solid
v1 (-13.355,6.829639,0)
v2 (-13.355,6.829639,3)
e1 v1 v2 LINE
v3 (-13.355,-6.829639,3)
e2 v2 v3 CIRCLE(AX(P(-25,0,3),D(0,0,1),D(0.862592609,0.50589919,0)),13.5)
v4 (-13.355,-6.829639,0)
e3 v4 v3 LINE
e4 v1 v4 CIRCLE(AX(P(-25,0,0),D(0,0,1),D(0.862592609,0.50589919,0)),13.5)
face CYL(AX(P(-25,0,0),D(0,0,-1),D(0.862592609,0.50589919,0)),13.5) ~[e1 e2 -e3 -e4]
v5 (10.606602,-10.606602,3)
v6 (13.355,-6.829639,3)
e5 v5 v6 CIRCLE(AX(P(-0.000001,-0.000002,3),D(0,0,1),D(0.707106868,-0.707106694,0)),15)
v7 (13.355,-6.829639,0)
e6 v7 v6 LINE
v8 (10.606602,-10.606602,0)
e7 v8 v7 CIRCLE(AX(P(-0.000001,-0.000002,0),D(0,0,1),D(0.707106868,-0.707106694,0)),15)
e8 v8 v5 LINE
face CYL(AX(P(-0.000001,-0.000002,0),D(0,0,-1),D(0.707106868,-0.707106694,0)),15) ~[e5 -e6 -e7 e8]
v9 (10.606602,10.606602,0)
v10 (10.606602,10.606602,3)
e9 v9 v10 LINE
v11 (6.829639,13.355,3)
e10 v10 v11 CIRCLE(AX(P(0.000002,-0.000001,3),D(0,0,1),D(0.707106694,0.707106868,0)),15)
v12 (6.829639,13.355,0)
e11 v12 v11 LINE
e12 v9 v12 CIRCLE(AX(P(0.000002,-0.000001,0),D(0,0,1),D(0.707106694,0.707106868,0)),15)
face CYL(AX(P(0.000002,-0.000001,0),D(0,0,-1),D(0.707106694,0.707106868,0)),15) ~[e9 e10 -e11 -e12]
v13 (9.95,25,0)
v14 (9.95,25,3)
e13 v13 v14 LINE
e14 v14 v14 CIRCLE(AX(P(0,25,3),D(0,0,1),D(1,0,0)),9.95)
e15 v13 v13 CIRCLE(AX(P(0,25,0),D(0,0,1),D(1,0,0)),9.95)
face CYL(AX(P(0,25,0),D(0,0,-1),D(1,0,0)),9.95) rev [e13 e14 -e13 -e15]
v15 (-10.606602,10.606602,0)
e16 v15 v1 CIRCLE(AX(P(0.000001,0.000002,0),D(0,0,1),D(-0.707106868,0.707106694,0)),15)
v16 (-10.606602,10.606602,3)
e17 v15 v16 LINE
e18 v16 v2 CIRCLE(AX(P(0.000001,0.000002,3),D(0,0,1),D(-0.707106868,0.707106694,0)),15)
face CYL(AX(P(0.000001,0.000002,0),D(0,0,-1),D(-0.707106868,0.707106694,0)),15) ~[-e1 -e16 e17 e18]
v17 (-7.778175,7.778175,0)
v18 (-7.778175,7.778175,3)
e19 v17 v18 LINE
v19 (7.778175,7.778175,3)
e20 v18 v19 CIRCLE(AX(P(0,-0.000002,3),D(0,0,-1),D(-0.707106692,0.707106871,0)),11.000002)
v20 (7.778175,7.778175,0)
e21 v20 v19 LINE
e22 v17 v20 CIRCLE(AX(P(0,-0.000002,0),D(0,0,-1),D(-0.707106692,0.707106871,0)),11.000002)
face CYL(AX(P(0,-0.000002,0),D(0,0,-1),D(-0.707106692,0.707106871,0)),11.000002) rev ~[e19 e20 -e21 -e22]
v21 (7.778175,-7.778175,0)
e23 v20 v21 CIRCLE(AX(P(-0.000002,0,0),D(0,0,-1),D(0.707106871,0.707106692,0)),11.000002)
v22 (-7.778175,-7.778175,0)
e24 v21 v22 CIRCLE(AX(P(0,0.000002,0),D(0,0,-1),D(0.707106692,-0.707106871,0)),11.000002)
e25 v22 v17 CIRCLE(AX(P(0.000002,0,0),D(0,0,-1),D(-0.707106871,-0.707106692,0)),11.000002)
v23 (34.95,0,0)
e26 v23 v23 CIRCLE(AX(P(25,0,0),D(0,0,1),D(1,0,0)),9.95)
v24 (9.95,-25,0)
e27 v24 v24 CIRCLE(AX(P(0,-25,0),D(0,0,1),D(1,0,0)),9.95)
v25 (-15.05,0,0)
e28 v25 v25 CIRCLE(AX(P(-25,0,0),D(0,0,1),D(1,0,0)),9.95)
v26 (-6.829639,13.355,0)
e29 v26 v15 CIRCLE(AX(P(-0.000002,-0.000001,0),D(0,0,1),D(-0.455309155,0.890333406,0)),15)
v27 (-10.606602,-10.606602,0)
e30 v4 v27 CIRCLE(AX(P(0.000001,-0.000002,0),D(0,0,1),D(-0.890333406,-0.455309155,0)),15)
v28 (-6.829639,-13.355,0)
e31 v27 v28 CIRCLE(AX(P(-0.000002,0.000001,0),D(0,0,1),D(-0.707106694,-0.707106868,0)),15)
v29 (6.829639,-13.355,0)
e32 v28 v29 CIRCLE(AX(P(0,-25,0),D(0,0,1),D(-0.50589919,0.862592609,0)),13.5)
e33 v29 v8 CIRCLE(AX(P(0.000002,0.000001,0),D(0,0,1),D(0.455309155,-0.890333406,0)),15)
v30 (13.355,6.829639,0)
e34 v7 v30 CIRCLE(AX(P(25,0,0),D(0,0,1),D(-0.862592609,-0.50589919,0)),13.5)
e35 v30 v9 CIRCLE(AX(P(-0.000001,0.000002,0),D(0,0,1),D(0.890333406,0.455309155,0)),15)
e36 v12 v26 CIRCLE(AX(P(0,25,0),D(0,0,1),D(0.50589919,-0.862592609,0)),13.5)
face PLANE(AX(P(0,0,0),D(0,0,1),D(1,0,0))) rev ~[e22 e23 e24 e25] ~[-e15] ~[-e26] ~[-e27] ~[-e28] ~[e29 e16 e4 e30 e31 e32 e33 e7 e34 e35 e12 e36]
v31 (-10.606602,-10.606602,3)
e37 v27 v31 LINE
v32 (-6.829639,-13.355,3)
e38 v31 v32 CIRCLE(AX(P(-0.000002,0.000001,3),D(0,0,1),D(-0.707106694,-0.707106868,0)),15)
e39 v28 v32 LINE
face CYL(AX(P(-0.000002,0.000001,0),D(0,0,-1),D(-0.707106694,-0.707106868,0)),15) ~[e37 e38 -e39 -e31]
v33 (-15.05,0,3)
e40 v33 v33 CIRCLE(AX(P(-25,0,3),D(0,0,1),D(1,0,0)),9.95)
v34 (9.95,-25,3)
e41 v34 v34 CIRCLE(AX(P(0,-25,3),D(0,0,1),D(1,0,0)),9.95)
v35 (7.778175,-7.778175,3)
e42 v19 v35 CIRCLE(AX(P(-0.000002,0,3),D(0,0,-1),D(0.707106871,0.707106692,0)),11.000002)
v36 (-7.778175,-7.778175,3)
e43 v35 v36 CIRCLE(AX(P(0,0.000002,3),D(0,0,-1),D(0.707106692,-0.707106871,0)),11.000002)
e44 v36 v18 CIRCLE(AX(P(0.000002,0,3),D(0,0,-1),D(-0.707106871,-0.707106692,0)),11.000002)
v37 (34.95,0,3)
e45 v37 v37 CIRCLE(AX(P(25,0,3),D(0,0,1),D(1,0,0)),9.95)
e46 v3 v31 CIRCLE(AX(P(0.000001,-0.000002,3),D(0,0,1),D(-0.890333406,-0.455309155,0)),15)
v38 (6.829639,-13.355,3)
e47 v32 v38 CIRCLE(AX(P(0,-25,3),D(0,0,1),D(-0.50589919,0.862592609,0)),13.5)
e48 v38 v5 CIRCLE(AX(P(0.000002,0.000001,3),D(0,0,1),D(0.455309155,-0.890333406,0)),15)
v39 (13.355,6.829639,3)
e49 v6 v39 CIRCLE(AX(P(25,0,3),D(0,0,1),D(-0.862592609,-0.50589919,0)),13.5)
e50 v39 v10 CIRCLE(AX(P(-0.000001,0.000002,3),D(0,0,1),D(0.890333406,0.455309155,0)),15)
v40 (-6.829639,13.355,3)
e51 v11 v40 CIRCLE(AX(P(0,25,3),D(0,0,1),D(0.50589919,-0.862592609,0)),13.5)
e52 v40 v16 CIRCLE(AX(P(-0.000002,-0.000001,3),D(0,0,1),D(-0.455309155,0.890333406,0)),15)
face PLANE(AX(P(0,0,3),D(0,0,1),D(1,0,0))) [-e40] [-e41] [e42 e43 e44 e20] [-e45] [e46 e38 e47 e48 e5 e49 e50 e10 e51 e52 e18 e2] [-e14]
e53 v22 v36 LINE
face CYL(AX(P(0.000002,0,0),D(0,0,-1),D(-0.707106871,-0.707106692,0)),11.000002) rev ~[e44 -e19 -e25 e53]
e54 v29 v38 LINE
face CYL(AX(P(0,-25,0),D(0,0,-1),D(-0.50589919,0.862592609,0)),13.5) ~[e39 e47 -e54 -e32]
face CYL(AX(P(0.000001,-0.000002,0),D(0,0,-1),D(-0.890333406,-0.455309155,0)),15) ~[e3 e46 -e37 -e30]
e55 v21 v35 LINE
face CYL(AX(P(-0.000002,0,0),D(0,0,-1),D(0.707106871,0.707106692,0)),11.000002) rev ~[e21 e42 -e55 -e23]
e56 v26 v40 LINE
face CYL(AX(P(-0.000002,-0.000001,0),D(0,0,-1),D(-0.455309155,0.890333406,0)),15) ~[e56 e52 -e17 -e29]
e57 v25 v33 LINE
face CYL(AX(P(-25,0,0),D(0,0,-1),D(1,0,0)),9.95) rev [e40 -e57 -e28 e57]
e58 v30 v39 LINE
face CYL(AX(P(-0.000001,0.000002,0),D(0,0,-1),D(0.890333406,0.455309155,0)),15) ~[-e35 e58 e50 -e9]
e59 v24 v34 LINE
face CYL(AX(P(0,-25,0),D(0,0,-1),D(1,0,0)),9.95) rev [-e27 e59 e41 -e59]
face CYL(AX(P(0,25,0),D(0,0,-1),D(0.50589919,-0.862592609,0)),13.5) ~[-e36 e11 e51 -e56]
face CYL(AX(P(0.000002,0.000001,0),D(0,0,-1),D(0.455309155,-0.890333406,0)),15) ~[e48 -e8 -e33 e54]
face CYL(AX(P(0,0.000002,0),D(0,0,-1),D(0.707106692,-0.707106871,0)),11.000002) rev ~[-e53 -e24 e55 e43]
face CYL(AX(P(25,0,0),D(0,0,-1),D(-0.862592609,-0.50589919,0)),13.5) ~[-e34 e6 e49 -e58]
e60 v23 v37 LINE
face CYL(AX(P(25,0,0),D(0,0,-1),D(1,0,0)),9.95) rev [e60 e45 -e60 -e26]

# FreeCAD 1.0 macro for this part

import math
import FreeCAD as App
import Part
import Sketcher

V = App.Vector
Q = App.Units.Quantity

doc = App.newDocument("Part")
params = doc.addObject("Spreadsheet::Sheet", "Params")
for row, (alias, value) in enumerate([
    ("sketch1_radius", "15 mm"),
    ("sketch1_radius2", "11.000002 mm"),
    ("sketch1_diameter", "19.9 mm"),
    ("sketch1_radius3", "13.5 mm"),
    ("pad1_length", "3 mm"),
], start=1):
    params.set(f"A{row}", alias)
    params.set(f"B{row}", "=" + value)
    params.setAlias(f"B{row}", alias)

body = doc.addObject("PartDesign::Body", "Body")

# Sketch on XY plane
sketch1 = body.newObject("Sketcher::SketchObject", "Sketch")
sketch1.AttachmentSupport = (doc.getObject("XY_Plane"), [""])
sketch1.MapMode = "FlatFace"
sketch1.addGeometry(Part.ArcOfCircle(Part.Circle(V(0, 25, 0), V(0, 0, 1), 13.5), math.radians(-60), math.radians(240)), False)
sketch1.addGeometry(Part.ArcOfCircle(Part.Circle(V(0, 0, 0), V(0, 0, 1), 15), math.radians(117.08), math.radians(135)), False)
sketch1.addGeometry(Part.ArcOfCircle(Part.Circle(V(0, 0, 0), V(0, 0, 1), 15), math.radians(135), math.radians(152.92)), False)
sketch1.addGeometry(Part.ArcOfCircle(Part.Circle(V(-25, 0, 0), V(0, 0, 1), 13.5), math.radians(30), math.radians(330)), False)
sketch1.addGeometry(Part.ArcOfCircle(Part.Circle(V(0, 0, 0), V(0, 0, 1), 15), math.radians(-152.92), math.radians(-135)), False)
sketch1.addGeometry(Part.ArcOfCircle(Part.Circle(V(0, 0, 0), V(0, 0, 1), 15), math.radians(-135), math.radians(-117.08)), False)
sketch1.addGeometry(Part.ArcOfCircle(Part.Circle(V(0, -25, 0), V(0, 0, 1), 13.5), math.radians(120), math.radians(420)), False)
sketch1.addGeometry(Part.ArcOfCircle(Part.Circle(V(0, 0, 0), V(0, 0, 1), 15), math.radians(-62.92), math.radians(-45)), False)
sketch1.addGeometry(Part.ArcOfCircle(Part.Circle(V(0, 0, 0), V(0, 0, 1), 15), math.radians(-45), math.radians(-27.08)), False)
sketch1.addGeometry(Part.ArcOfCircle(Part.Circle(V(25, 0, 0), V(0, 0, 1), 13.5), math.radians(-150), math.radians(150)), False)
sketch1.addGeometry(Part.ArcOfCircle(Part.Circle(V(0, 0, 0), V(0, 0, 1), 15), math.radians(27.08), math.radians(45)), False)
sketch1.addGeometry(Part.ArcOfCircle(Part.Circle(V(0, 0, 0), V(0, 0, 1), 15), math.radians(45), math.radians(62.92)), False)
sketch1.addGeometry(Part.Circle(V(0, -25, 0), V(0, 0, 1), 9.9), False)
sketch1.addGeometry(Part.Circle(V(-25, 0, 0), V(0, 0, 1), 9.9), False)
sketch1.addGeometry(Part.ArcOfCircle(Part.Circle(V(0, 0, 0), V(0, 0, 1), 11), math.radians(135), math.radians(225)), False)
sketch1.addGeometry(Part.ArcOfCircle(Part.Circle(V(0, 0, 0), V(0, 0, 1), 11), math.radians(45), math.radians(135)), False)
sketch1.addGeometry(Part.ArcOfCircle(Part.Circle(V(0, 0, 0), V(0, 0, 1), 11), math.radians(-45), math.radians(45)), False)
sketch1.addGeometry(Part.ArcOfCircle(Part.Circle(V(0, 0, 0), V(0, 0, 1), 11), math.radians(-135), math.radians(-45)), False)
sketch1.addGeometry(Part.Circle(V(25, 0, 0), V(0, 0, 1), 9.9), False)
sketch1.addGeometry(Part.Circle(V(0, 25, 0), V(0, 0, 1), 9.9), False)
sketch1.addConstraint(Sketcher.Constraint("Coincident", 0, 2, 1, 1))
sketch1.addConstraint(Sketcher.Constraint("Tangent", 1, 2, 2, 1))
sketch1.addConstraint(Sketcher.Constraint("Coincident", 2, 2, 3, 1))
sketch1.addConstraint(Sketcher.Constraint("Coincident", 3, 2, 4, 1))
sketch1.addConstraint(Sketcher.Constraint("Tangent", 4, 2, 5, 1))
sketch1.addConstraint(Sketcher.Constraint("Coincident", 5, 2, 6, 1))
sketch1.addConstraint(Sketcher.Constraint("Coincident", 6, 2, 7, 1))
sketch1.addConstraint(Sketcher.Constraint("Tangent", 7, 2, 8, 1))
sketch1.addConstraint(Sketcher.Constraint("Coincident", 8, 2, 9, 1))
sketch1.addConstraint(Sketcher.Constraint("Coincident", 9, 2, 10, 1))
sketch1.addConstraint(Sketcher.Constraint("Tangent", 10, 2, 11, 1))
sketch1.addConstraint(Sketcher.Constraint("Coincident", 11, 2, 0, 1))
sketch1.addConstraint(Sketcher.Constraint("Tangent", 14, 1, 15, 2))
sketch1.addConstraint(Sketcher.Constraint("Tangent", 15, 1, 16, 2))
sketch1.addConstraint(Sketcher.Constraint("Tangent", 16, 1, 17, 2))
sketch1.addConstraint(Sketcher.Constraint("Tangent", 17, 1, 14, 2))
sketch1.addConstraint(Sketcher.Constraint("Coincident", 1, 3, -1, 1))
sketch1.addConstraint(Sketcher.Constraint("Coincident", 4, 3, -1, 1))
sketch1.addConstraint(Sketcher.Constraint("Coincident", 7, 3, -1, 1))
sketch1.addConstraint(Sketcher.Constraint("Coincident", 10, 3, -1, 1))
sketch1.addConstraint(Sketcher.Constraint("Coincident", 14, 3, -1, 1))
sketch1.addConstraint(Sketcher.Constraint("Coincident", 12, 3, 6, 3))
sketch1.addConstraint(Sketcher.Constraint("Coincident", 13, 3, 3, 3))
sketch1.addConstraint(Sketcher.Constraint("Coincident", 18, 3, 9, 3))
sketch1.addConstraint(Sketcher.Constraint("Coincident", 19, 3, 0, 3))
sketch1.addConstraint(Sketcher.Constraint("Equal", 1, 2))
sketch1.addConstraint(Sketcher.Constraint("Equal", 0, 3))
sketch1.addConstraint(Sketcher.Constraint("Equal", 2, 4))
sketch1.addConstraint(Sketcher.Constraint("Equal", 4, 5))
sketch1.addConstraint(Sketcher.Constraint("Equal", 3, 6))
sketch1.addConstraint(Sketcher.Constraint("Equal", 5, 7))
sketch1.addConstraint(Sketcher.Constraint("Equal", 7, 8))
sketch1.addConstraint(Sketcher.Constraint("Equal", 6, 9))
sketch1.addConstraint(Sketcher.Constraint("Equal", 8, 10))
sketch1.addConstraint(Sketcher.Constraint("Equal", 10, 11))
sketch1.addConstraint(Sketcher.Constraint("Equal", 12, 13))
sketch1.addConstraint(Sketcher.Constraint("Equal", 14, 15))
sketch1.addConstraint(Sketcher.Constraint("Equal", 13, 18))
sketch1.addConstraint(Sketcher.Constraint("Equal", 18, 19))
sketch1.addConstraint(Sketcher.Constraint("Symmetric", 0, 3, 6, 3, -1, 1))
sketch1.addConstraint(Sketcher.Constraint("Symmetric", 3, 3, 9, 3, -1, 1))
sketch1.addConstraint(Sketcher.Constraint("PointOnObject", 0, 3, -2))
sketch1.addConstraint(Sketcher.Constraint("PointOnObject", 3, 3, -1))
sketch1.addConstraint(Sketcher.Constraint("Horizontal", 4, 2, 7, 2))
sketch1.addConstraint(Sketcher.Constraint("Horizontal", 1, 2, 10, 2))
sketch1.addConstraint(Sketcher.Constraint("Horizontal", 14, 1, 15, 1))
sketch1.addConstraint(Sketcher.Constraint("Horizontal", 16, 1, 17, 1))
sketch1.addConstraint(Sketcher.Constraint("Vertical", 1, 2, 4, 2))
sketch1.addConstraint(Sketcher.Constraint("Vertical", 15, 1, 16, 1))
sketch1.addConstraint(Sketcher.Constraint("Radius", 1, Q("15 mm")))
sketch1.addConstraint(Sketcher.Constraint("Radius", 14, Q("11.000002 mm")))
sketch1.addConstraint(Sketcher.Constraint("Diameter", 12, Q("19.9 mm")))
sketch1.addConstraint(Sketcher.Constraint("Radius", 0, Q("13.5 mm")))
sketch1.addConstraint(Sketcher.Constraint("DistanceY", -1, 1, 0, 3, Q("25 mm")))
sketch1.addConstraint(Sketcher.Constraint("DistanceX", 3, 3, -1, 1, Q("25 mm")))
sketch1.addConstraint(Sketcher.Constraint("DistanceX", 1, 2, -1, 1, Q("10.606602 mm")))
sketch1.addConstraint(Sketcher.Constraint("DistanceX", 14, 1, -1, 1, Q("7.778175 mm")))
sketch1.setExpression("Constraints[49]", "Params.sketch1_radius")
sketch1.setExpression("Constraints[50]", "Params.sketch1_radius2")
sketch1.setExpression("Constraints[51]", "Params.sketch1_diameter")
sketch1.setExpression("Constraints[52]", "Params.sketch1_radius3")
pad1 = body.newObject("PartDesign::Pad", "Pad")
pad1.Profile = sketch1
pad1.setExpression("Length", "Params.pad1_length")

doc.recompute()
